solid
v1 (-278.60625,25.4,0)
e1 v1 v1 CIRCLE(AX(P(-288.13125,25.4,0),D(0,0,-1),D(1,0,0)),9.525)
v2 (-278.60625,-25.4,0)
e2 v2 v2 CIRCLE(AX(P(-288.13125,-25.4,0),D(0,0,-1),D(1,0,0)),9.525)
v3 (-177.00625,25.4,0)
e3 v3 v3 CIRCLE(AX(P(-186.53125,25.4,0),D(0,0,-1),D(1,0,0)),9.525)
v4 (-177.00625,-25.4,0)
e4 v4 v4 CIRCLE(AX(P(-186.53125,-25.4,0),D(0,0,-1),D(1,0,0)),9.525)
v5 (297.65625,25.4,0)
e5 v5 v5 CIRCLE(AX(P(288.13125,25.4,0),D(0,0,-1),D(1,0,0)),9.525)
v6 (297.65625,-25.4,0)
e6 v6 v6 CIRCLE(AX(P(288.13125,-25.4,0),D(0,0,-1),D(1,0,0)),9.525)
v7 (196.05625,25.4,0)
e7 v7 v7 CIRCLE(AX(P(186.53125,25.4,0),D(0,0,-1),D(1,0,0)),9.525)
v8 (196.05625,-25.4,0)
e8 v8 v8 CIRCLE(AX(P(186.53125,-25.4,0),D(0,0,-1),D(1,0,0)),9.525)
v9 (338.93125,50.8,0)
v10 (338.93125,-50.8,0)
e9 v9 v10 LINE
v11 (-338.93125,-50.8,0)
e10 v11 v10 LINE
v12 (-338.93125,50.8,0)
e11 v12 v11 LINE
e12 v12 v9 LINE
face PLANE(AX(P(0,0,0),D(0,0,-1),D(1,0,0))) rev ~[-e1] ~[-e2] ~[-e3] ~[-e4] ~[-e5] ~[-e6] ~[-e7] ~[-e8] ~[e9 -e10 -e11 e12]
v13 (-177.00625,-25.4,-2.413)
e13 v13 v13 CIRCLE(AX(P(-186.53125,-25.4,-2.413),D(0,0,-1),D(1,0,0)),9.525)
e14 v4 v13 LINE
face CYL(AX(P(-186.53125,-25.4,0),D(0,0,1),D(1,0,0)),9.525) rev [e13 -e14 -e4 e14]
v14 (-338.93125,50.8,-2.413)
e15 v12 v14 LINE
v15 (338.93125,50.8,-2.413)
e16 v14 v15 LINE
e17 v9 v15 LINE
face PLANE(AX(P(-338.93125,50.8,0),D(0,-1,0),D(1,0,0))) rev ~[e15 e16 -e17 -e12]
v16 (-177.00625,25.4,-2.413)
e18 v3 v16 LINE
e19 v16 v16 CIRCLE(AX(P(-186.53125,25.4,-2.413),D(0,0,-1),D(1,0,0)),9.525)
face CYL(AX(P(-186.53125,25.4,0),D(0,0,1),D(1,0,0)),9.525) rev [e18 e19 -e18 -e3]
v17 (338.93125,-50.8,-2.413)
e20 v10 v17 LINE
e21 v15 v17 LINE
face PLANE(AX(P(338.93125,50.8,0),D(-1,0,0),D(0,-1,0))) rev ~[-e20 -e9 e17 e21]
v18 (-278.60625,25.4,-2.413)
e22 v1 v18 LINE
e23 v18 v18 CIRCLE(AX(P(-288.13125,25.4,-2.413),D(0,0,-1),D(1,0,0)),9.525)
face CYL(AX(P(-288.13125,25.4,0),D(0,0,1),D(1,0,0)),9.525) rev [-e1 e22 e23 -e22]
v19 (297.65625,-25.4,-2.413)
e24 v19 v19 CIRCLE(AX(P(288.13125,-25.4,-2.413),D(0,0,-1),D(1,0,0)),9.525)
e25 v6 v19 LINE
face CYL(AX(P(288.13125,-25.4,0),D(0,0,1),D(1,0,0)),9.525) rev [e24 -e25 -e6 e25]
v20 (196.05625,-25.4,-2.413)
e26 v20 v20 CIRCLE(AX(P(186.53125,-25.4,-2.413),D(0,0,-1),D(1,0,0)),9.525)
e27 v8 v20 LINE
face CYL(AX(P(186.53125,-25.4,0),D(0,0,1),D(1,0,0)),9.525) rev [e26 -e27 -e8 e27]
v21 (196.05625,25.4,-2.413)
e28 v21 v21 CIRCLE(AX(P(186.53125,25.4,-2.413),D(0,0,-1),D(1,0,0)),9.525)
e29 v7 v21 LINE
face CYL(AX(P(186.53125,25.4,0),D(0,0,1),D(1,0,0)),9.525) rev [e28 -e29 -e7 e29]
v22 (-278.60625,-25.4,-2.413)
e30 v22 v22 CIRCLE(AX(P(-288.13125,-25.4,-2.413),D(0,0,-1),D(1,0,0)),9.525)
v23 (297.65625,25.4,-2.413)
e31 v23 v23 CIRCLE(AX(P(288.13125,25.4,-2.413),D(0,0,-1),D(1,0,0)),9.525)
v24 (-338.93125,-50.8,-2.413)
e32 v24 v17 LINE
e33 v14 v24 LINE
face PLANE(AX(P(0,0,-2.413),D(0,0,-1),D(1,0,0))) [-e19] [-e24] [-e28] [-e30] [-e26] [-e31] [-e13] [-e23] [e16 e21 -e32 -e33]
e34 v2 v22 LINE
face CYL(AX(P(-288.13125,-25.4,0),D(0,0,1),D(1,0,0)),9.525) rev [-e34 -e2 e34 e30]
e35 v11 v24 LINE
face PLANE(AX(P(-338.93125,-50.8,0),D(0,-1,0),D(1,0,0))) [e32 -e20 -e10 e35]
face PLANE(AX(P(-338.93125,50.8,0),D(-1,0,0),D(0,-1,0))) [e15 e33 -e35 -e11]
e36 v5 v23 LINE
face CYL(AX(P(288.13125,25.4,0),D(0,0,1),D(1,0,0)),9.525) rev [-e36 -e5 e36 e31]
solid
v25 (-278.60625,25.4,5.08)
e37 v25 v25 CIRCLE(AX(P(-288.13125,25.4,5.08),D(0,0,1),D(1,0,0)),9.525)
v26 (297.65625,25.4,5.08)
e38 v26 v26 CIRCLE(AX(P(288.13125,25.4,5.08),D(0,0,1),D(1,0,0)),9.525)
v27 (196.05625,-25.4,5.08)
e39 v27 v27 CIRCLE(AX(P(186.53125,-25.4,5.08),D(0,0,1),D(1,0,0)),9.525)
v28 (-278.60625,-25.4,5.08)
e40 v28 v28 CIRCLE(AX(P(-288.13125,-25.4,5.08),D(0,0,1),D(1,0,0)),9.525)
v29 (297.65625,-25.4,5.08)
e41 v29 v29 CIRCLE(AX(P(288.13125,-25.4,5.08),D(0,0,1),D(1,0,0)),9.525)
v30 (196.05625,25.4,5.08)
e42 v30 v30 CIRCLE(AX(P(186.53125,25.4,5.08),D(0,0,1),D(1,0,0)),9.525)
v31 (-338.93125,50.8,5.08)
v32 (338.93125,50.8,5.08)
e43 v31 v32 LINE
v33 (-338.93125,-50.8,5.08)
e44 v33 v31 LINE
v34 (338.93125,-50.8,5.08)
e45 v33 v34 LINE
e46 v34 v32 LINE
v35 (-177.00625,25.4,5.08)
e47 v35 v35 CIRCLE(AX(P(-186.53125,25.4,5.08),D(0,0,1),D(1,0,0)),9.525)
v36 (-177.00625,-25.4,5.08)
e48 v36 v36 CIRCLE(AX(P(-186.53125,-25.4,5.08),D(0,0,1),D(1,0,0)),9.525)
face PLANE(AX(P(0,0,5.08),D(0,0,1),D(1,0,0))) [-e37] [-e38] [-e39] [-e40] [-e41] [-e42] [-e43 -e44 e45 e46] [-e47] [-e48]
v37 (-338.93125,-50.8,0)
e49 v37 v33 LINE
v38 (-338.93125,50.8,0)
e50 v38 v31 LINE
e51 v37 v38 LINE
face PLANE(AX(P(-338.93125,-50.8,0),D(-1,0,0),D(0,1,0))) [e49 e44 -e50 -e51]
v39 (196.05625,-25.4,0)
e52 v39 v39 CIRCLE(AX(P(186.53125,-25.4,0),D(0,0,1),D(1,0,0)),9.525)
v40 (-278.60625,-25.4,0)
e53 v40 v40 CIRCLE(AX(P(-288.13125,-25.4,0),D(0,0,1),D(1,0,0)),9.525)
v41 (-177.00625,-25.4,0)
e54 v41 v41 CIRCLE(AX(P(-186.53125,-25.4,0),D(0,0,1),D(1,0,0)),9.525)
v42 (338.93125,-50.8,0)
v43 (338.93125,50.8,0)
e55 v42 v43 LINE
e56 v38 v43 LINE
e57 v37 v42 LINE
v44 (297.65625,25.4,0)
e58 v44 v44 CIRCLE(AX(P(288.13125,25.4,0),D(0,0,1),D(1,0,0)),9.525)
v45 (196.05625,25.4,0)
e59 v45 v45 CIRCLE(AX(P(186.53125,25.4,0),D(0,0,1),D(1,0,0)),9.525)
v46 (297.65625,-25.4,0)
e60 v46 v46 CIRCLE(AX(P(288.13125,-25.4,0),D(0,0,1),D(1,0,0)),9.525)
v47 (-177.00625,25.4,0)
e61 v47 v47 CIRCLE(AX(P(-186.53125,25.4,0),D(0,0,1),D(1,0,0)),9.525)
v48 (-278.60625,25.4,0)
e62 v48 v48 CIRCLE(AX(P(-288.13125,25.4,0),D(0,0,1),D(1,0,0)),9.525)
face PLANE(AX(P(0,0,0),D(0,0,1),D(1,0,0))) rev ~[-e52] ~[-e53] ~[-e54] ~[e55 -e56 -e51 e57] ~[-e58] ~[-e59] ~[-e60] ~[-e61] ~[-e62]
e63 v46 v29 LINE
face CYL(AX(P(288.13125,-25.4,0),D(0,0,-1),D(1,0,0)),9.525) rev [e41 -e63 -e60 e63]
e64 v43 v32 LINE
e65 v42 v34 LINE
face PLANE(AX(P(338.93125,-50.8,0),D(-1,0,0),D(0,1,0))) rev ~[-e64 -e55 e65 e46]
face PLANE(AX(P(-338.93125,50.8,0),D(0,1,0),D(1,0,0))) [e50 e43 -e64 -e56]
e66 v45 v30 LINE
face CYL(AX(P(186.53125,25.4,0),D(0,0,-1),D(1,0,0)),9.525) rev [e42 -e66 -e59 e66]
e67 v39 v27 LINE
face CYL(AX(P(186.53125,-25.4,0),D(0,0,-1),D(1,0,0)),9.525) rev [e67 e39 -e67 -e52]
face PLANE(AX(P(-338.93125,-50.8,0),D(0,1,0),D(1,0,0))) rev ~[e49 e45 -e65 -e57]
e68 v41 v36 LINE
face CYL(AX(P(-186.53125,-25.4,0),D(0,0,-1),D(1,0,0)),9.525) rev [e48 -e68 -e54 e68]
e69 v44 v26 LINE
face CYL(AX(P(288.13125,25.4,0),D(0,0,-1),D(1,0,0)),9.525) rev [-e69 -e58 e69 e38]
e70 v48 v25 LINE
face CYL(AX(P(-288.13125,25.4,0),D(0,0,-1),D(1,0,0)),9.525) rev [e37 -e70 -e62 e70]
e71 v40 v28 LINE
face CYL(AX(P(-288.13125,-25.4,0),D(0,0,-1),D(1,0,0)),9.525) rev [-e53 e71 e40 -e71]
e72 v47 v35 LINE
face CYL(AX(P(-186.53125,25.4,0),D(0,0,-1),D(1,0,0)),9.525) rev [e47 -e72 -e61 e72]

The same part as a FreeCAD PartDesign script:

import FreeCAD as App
import Part
import Sketcher
from FreeCAD import Vector
Q = App.Units.Quantity


def add_polygon(sketch, points):
    """Adds a closed chain of lines whose ends are joined by coincident constraints."""
    first, n = sketch.GeometryCount, len(points)
    for a, b in zip(points, points[1:] + points[:1]):
        sketch.addGeometry(Part.LineSegment(App.Vector(*a, 0), App.Vector(*b, 0)), False)
    for i in range(n):
        sketch.addConstraint(Sketcher.Constraint("Coincident", first + i, 2, first + (i + 1) % n, 1))

doc = App.newDocument("Part")
body = doc.addObject("PartDesign::Body", "Body")

# Sketch on XY plane
sketch1 = body.newObject("Sketcher::SketchObject", "Sketch")
sketch1.AttachmentSupport = (doc.getObject("XY_Plane"), [""])
sketch1.MapMode = "FlatFace"
add_polygon(sketch1, [(-339, 51), (-339, -51), (339, -51), (339, 51)])  # lines 0-3
sketch1.addGeometry(Part.Circle(Vector(-288, -25, 0), Vector(0, 0, 1), 10), False)  # 4
sketch1.addGeometry(Part.Circle(Vector(-187, -25, 0), Vector(0, 0, 1), 10), False)  # 5
sketch1.addGeometry(Part.Circle(Vector(187, -25, 0), Vector(0, 0, 1), 10), False)  # 6
sketch1.addGeometry(Part.Circle(Vector(288, -25, 0), Vector(0, 0, 1), 10), False)  # 7
sketch1.addGeometry(Part.Circle(Vector(-288, 25, 0), Vector(0, 0, 1), 10), False)  # 8
sketch1.addGeometry(Part.Circle(Vector(-187, 25, 0), Vector(0, 0, 1), 10), False)  # 9
sketch1.addGeometry(Part.Circle(Vector(187, 25, 0), Vector(0, 0, 1), 10), False)  # 10
sketch1.addGeometry(Part.Circle(Vector(288, 25, 0), Vector(0, 0, 1), 10), False)  # 11
sketch1.addConstraint([
    Sketcher.Constraint("Vertical", 0),
    Sketcher.Constraint("Horizontal", 1),
    Sketcher.Constraint("Vertical", 2),
    Sketcher.Constraint("Horizontal", 3),
    Sketcher.Constraint("Equal", 4, 5),
    Sketcher.Constraint("Equal", 5, 6),
    Sketcher.Constraint("Equal", 6, 7),
    Sketcher.Constraint("Equal", 7, 8),
    Sketcher.Constraint("Equal", 8, 9),
    Sketcher.Constraint("Equal", 9, 10),
    Sketcher.Constraint("Equal", 10, 11),
    Sketcher.Constraint("Symmetric", 7, 3, 8, 3, -1, 1),
    Sketcher.Constraint("Symmetric", 6, 3, 9, 3, -1, 1),
    Sketcher.Constraint("Symmetric", 5, 3, 10, 3, -1, 1),
    Sketcher.Constraint("Symmetric", 4, 3, 11, 3, -1, 1),
    Sketcher.Constraint("Symmetric", 0, 2, 2, 2, -1, 1),
    Sketcher.Constraint("Symmetric", 5, 3, 6, 3, -2),
    Sketcher.Constraint("Symmetric", 4, 3, 7, 3, -2),
    Sketcher.Constraint("Horizontal", 4, 3, 5, 3),
    Sketcher.Constraint("Diameter", 4, Q("0.75 in")),
    Sketcher.Constraint("DistanceY", 0, 2, 0, 1, Q("4 in")),
    Sketcher.Constraint("DistanceY", 4, 3, -1, 1, Q("1 in")),
    Sketcher.Constraint("DistanceX", 4, 3, 5, 3, Q("4 in")),
    Sketcher.Constraint("DistanceX", 0, 2, 4, 3, Q("2 in")),
    Sketcher.Constraint("DistanceX", 1, 1, 1, 2, Q("26.6875 in")),
])
pad1 = body.newObject("PartDesign::Pad", "Pad")
pad1.Profile = sketch1
pad1.Length = Q("0.2 in")
body2 = doc.addObject("PartDesign::Body", "Body001")

# Sketch on XY plane
sketch2 = body2.newObject("Sketcher::SketchObject", "Sketch001")
sketch2.AttachmentSupport = (doc.getObject("XY_Plane001"), [""])
sketch2.MapMode = "FlatFace"
add_polygon(sketch2, [(-339, -51), (-339, 51), (339, 51), (339, -51)])  # lines 0-3
sketch2.addGeometry(Part.Circle(Vector(-288, 25, 0), Vector(0, 0, 1), 10), False)  # 4
sketch2.addGeometry(Part.Circle(Vector(-187, 25, 0), Vector(0, 0, 1), 10), False)  # 5
sketch2.addGeometry(Part.Circle(Vector(187, 25, 0), Vector(0, 0, 1), 10), False)  # 6
sketch2.addGeometry(Part.Circle(Vector(288, 25, 0), Vector(0, 0, 1), 10), False)  # 7
sketch2.addGeometry(Part.Circle(Vector(-288, -25, 0), Vector(0, 0, 1), 10), False)  # 8
sketch2.addGeometry(Part.Circle(Vector(-187, -25, 0), Vector(0, 0, 1), 10), False)  # 9
sketch2.addGeometry(Part.Circle(Vector(187, -25, 0), Vector(0, 0, 1), 10), False)  # 10
sketch2.addGeometry(Part.Circle(Vector(288, -25, 0), Vector(0, 0, 1), 10), False)  # 11
sketch2.addConstraint([
    Sketcher.Constraint("Vertical", 0),
    Sketcher.Constraint("Horizontal", 1),
    Sketcher.Constraint("Vertical", 2),
    Sketcher.Constraint("Horizontal", 3),
    Sketcher.Constraint("Equal", 4, 5),
    Sketcher.Constraint("Equal", 5, 6),
    Sketcher.Constraint("Equal", 6, 7),
    Sketcher.Constraint("Equal", 7, 8),
    Sketcher.Constraint("Equal", 8, 9),
    Sketcher.Constraint("Equal", 9, 10),
    Sketcher.Constraint("Equal", 10, 11),
    Sketcher.Constraint("Symmetric", 7, 3, 8, 3, -1, 1),
    Sketcher.Constraint("Symmetric", 6, 3, 9, 3, -1, 1),
    Sketcher.Constraint("Symmetric", 5, 3, 10, 3, -1, 1),
    Sketcher.Constraint("Symmetric", 4, 3, 11, 3, -1, 1),
    Sketcher.Constraint("Symmetric", 0, 2, 2, 2, -1, 1),
    Sketcher.Constraint("Symmetric", 5, 3, 6, 3, -2),
    Sketcher.Constraint("Symmetric", 4, 3, 7, 3, -2),
    Sketcher.Constraint("Horizontal", 4, 3, 5, 3),
    Sketcher.Constraint("Diameter", 4, Q("0.75 in")),
    Sketcher.Constraint("DistanceY", 0, 1, 0, 2, Q("4 in")),
    Sketcher.Constraint("DistanceY", -1, 1, 4, 3, Q("1 in")),
    Sketcher.Constraint("DistanceX", 4, 3, 5, 3, Q("4 in")),
    Sketcher.Constraint("DistanceX", 0, 2, 4, 3, Q("2 in")),
    Sketcher.Constraint("DistanceX", 1, 1, 1, 2, Q("26.6875 in")),
])
pad2 = body2.newObject("PartDesign::Pad", "Pad001")
pad2.Profile = sketch2
pad2.Length = Q("0.095 in")
pad2.Reversed = True

doc.recompute()
